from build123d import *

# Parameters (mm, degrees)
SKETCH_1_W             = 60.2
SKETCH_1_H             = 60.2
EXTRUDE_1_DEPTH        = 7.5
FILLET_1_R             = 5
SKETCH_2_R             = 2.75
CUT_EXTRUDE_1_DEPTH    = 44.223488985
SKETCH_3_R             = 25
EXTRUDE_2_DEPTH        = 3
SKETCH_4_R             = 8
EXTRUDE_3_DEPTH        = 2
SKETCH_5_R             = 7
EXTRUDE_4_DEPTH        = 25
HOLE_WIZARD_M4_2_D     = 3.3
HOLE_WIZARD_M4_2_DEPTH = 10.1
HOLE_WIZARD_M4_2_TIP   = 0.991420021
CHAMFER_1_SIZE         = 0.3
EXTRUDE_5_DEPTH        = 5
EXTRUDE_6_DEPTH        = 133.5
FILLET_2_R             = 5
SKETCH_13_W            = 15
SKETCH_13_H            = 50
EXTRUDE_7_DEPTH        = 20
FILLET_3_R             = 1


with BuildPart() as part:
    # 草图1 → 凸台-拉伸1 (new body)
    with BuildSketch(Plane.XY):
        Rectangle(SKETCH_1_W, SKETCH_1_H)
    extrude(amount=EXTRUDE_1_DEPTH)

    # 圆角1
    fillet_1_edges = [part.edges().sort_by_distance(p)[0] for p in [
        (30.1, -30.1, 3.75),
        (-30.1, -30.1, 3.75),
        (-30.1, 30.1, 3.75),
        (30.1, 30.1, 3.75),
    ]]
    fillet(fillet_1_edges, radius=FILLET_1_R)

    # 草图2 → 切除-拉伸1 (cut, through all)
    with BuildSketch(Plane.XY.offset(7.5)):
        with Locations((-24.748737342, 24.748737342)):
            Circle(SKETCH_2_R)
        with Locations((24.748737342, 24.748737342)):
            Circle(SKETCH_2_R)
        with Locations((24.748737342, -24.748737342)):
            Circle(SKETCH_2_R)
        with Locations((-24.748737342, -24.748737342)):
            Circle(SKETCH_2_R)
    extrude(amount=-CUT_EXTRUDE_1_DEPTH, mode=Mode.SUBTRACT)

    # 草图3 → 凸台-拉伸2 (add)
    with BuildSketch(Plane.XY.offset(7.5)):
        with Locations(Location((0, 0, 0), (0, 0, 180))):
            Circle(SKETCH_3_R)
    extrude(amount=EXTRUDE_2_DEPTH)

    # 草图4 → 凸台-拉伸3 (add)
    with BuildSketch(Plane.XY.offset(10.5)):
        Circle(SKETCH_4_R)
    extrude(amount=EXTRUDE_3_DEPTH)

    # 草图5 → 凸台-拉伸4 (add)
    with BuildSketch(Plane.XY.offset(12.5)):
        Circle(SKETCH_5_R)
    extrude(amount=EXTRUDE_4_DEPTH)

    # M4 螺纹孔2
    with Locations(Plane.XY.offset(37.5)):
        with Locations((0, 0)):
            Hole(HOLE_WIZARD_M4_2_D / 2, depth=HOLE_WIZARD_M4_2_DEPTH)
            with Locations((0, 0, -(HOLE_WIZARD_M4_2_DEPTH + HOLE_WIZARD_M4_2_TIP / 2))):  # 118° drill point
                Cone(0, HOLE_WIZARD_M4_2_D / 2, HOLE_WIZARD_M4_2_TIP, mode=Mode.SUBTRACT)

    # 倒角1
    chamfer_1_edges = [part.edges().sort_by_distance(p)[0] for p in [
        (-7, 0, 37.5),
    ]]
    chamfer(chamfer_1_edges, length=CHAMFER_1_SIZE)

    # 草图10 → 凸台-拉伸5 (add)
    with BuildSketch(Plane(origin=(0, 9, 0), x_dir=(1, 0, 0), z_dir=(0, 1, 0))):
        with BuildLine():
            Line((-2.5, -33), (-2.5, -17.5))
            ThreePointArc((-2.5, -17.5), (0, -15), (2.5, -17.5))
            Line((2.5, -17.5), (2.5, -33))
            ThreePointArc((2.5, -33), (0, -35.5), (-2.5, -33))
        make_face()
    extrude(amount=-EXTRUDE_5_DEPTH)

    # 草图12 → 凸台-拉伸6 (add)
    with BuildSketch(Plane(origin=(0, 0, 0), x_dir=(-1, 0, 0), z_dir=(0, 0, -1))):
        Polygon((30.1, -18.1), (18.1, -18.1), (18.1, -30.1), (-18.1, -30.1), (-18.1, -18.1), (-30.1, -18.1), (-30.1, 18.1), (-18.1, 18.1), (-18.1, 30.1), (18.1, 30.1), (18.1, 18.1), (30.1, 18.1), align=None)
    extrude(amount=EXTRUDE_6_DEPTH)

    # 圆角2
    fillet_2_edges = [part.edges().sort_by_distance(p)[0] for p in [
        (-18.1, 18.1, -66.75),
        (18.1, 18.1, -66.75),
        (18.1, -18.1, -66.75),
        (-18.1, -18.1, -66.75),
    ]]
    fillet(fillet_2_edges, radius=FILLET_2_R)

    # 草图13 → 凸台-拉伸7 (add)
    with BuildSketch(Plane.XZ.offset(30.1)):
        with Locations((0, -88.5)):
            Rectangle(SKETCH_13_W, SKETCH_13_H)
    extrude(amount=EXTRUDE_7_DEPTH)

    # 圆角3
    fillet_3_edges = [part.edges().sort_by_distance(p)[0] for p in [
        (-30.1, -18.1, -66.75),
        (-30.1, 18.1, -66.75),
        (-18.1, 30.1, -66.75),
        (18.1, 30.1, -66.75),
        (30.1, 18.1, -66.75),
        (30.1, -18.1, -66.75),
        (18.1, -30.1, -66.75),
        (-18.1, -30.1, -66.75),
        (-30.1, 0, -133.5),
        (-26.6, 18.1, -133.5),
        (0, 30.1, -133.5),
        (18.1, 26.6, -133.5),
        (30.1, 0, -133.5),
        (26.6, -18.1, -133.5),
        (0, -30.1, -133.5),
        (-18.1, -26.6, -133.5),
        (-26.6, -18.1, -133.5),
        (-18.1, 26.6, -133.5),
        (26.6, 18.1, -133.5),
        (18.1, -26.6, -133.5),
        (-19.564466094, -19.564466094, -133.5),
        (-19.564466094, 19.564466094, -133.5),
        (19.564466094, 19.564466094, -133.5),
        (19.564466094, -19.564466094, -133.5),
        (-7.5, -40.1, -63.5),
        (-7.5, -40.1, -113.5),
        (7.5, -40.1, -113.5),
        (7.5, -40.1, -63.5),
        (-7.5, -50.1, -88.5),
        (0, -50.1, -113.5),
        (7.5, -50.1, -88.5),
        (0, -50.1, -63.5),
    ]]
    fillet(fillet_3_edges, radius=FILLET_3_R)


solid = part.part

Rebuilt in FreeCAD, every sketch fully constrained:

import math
import FreeCAD as App
import Part
import Sketcher


def edges_at(feature, points):
    """Names of the edges that pass closest to the given points."""
    edges = feature.Shape.Edges
    near = lambda p: min(range(len(edges)), key=lambda i: edges[i].distToShape(Part.Vertex(*p))[0])
    return sorted({f"Edge{near(p) + 1}" for p in points})


def add_polygon(sketch, points):
    """Adds a closed chain of lines whose ends are joined by coincident constraints."""
    first, n = sketch.GeometryCount, len(points)
    for a, b in zip(points, points[1:] + points[:1]):
        sketch.addGeometry(Part.LineSegment(App.Vector(*a, 0), App.Vector(*b, 0)), False)
    for i in range(n):
        sketch.addConstraint(Sketcher.Constraint("Coincident", first + i, 2, first + (i + 1) % n, 1))

doc = App.newDocument("Part")
body = doc.addObject("PartDesign::Body", "Body")

# Sketch on XY plane
sketch1 = body.newObject("Sketcher::SketchObject", "Sketch")
sketch1.AttachmentSupport = (doc.getObject("XY_Plane"), [""])
sketch1.MapMode = "FlatFace"
add_polygon(sketch1, [(-30, 30), (-30, -30), (30, -30), (30, 30)])  # lines 0-3
sketch1.addConstraint([
    Sketcher.Constraint("Vertical", 0),
    Sketcher.Constraint("Horizontal", 1),
    Sketcher.Constraint("Vertical", 2),
    Sketcher.Constraint("Horizontal", 3),
    Sketcher.Constraint("Symmetric", 0, 2, 2, 2, -1, 1),
    Sketcher.Constraint("Equal", 3, 0),
    Sketcher.Constraint("DistanceX", 1, 1, 1, 2, 60.2),
])
pad1 = body.newObject("PartDesign::Pad", "Pad")
pad1.Profile = sketch1
pad1.Length = 7.5
doc.recompute()

fillet = body.newObject("PartDesign::Fillet", "Fillet")
fillet.Base = (pad1, edges_at(pad1, [
    (30.1, -30.1, 3.75),
    (-30.1, -30.1, 3.75),
    (-30.1, 30.1, 3.75),
    (30.1, 30.1, 3.75),
]))
fillet.Radius = 5

# Sketch on XY plane
sketch2 = body.newObject("Sketcher::SketchObject", "Sketch001")
sketch2.AttachmentSupport = (doc.getObject("XY_Plane"), [""])
sketch2.MapMode = "FlatFace"
sketch2.AttachmentOffset = App.Placement(App.Vector(0, 0, 7.5), App.Rotation())
sketch2.addGeometry([
    Part.Circle(App.Vector(-24.7, 24.7, 0), App.Vector(0, 0, 1), 2.8),
    Part.Circle(App.Vector(24.7, 24.7, 0), App.Vector(0, 0, 1), 2.8),
    Part.Circle(App.Vector(24.7, -24.7, 0), App.Vector(0, 0, 1), 2.8),
    Part.Circle(App.Vector(-24.7, -24.7, 0), App.Vector(0, 0, 1), 2.8),
], False)
sketch2.addConstraint([
    Sketcher.Constraint("Equal", 0, 1),
    Sketcher.Constraint("Equal", 1, 2),
    Sketcher.Constraint("Equal", 2, 3),
    Sketcher.Constraint("Symmetric", 0, 3, 2, 3, -1, 1),
    Sketcher.Constraint("Symmetric", 1, 3, 3, 3, -1, 1),
    Sketcher.Constraint("Symmetric", 0, 3, 1, 3, -2),
    Sketcher.Constraint("Diameter", 0, 5.5),
    Sketcher.Constraint("DistanceX", 0, 3, -1, 1, 24.748737),
    Sketcher.Constraint("DistanceY", -1, 1, 0, 3, 24.748737),
])
pocket1 = body.newObject("PartDesign::Pocket", "Pocket")
pocket1.Profile = sketch2
pocket1.Type = "ThroughAll"

# Sketch on XY plane
sketch3 = body.newObject("Sketcher::SketchObject", "Sketch002")
sketch3.AttachmentSupport = (doc.getObject("XY_Plane"), [""])
sketch3.MapMode = "FlatFace"
sketch3.AttachmentOffset = App.Placement(App.Vector(0, 0, 7.5), App.Rotation())
sketch3.addGeometry(Part.Circle(App.Vector(0, 0, 0), App.Vector(0, 0, 1), 25), False)
sketch3.addConstraint([
    Sketcher.Constraint("Coincident", 0, 3, -1, 1),
    Sketcher.Constraint("Diameter", 0, 50.0),
])
pad2 = body.newObject("PartDesign::Pad", "Pad001")
pad2.Profile = sketch3
pad2.Length = 3

# Sketch on XY plane
sketch4 = body.newObject("Sketcher::SketchObject", "Sketch003")
sketch4.AttachmentSupport = (doc.getObject("XY_Plane"), [""])
sketch4.MapMode = "FlatFace"
sketch4.AttachmentOffset = App.Placement(App.Vector(0, 0, 10.5), App.Rotation())
sketch4.addGeometry(Part.Circle(App.Vector(0, 0, 0), App.Vector(0, 0, 1), 8), False)
sketch4.addConstraint([
    Sketcher.Constraint("Coincident", 0, 3, -1, 1),
    Sketcher.Constraint("Diameter", 0, 16.0),
])
pad3 = body.newObject("PartDesign::Pad", "Pad002")
pad3.Profile = sketch4
pad3.Length = 2

# Sketch on XY plane
sketch5 = body.newObject("Sketcher::SketchObject", "Sketch004")
sketch5.AttachmentSupport = (doc.getObject("XY_Plane"), [""])
sketch5.MapMode = "FlatFace"
sketch5.AttachmentOffset = App.Placement(App.Vector(0, 0, 12.5), App.Rotation())
sketch5.addGeometry(Part.Circle(App.Vector(0, 0, 0), App.Vector(0, 0, 1), 7), False)
sketch5.addConstraint([
    Sketcher.Constraint("Coincident", 0, 3, -1, 1),
    Sketcher.Constraint("Diameter", 0, 14.0),
])
pad4 = body.newObject("PartDesign::Pad", "Pad003")
pad4.Profile = sketch5
pad4.Length = 25

# Sketch on XY plane
sketch6 = body.newObject("Sketcher::SketchObject", "Sketch005")
sketch6.AttachmentSupport = (doc.getObject("XY_Plane"), [""])
sketch6.MapMode = "FlatFace"
sketch6.AttachmentOffset = App.Placement(App.Vector(0, 0, 37.5), App.Rotation())
sketch6.addGeometry(Part.Circle(App.Vector(0, 0, 0), App.Vector(0, 0, 1), 1.6), False)
sketch6.addConstraint([
    Sketcher.Constraint("Coincident", 0, 3, -1, 1),
    Sketcher.Constraint("Diameter", 0, 3.3),
])
doc.recompute()
hole = body.newObject("PartDesign::Hole", "Hole")
hole.Profile = sketch6
hole.ThreadType = "None"
hole.Diameter = 3.3
hole.DepthType = "Dimension"
hole.Depth = 10.1
hole.DrillPoint = "Angled"
hole.DrillPointAngle = 118
doc.recompute()

chamfer = body.newObject("PartDesign::Chamfer", "Chamfer")
chamfer.Base = (hole, edges_at(hole, [(-7, 0, 37.5)]))
chamfer.Size = 0.3

# Sketch on XZ plane
sketch7 = body.newObject("Sketcher::SketchObject", "Sketch006")
sketch7.AttachmentSupport = (doc.getObject("XZ_Plane"), [""])
sketch7.MapMode = "FlatFace"
sketch7.AttachmentOffset = App.Placement(App.Vector(0, 0, -9), App.Rotation())
sketch7.addGeometry([
    Part.LineSegment(App.Vector(-2.5, 17.5, 0), App.Vector(-2.5, 33, 0)),
    Part.ArcOfCircle(Part.Circle(App.Vector(0, 33, 0), App.Vector(0, 0, 1), 2.5), math.radians(0), math.radians(180)),
    Part.LineSegment(App.Vector(2.5, 33, 0), App.Vector(2.5, 17.5, 0)),
    Part.ArcOfCircle(Part.Circle(App.Vector(0, 17.5, 0), App.Vector(0, 0, 1), 2.5), math.radians(180), math.radians(360)),
], False)
sketch7.addConstraint([
    Sketcher.Constraint("Tangent", 0, 2, 1, 2),
    Sketcher.Constraint("Tangent", 1, 1, 2, 1),
    Sketcher.Constraint("Tangent", 2, 2, 3, 2),
    Sketcher.Constraint("Tangent", 3, 1, 0, 1),
    Sketcher.Constraint("Vertical", 0),
    Sketcher.Constraint("Vertical", 2),
    Sketcher.Constraint("PointOnObject", 1, 3, -2),
    Sketcher.Constraint("Radius", 1, 2.5),
    Sketcher.Constraint("DistanceY", 0, 1, 0, 2, 15.5),
    Sketcher.Constraint("DistanceY", -1, 1, 1, 3, 33.0),
])
pad5 = body.newObject("PartDesign::Pad", "Pad004")
pad5.Profile = sketch7
pad5.Length = 5

# Sketch on XY plane
sketch8 = body.newObject("Sketcher::SketchObject", "Sketch007")
sketch8.AttachmentSupport = (doc.getObject("XY_Plane"), [""])
sketch8.MapMode = "FlatFace"
add_polygon(sketch8, [(-18, -18), (-30, -18), (-30, 18), (-18, 18), (-18, 30), (18, 30), (18, 18), (30, 18), (30, -18), (18, -18), (18, -30), (-18, -30)])  # lines 0-11
sketch8.addConstraint([
    Sketcher.Constraint("Horizontal", 0),
    Sketcher.Constraint("Vertical", 1),
    Sketcher.Constraint("Horizontal", 2),
    Sketcher.Constraint("Vertical", 3),
    Sketcher.Constraint("Horizontal", 4),
    Sketcher.Constraint("Vertical", 5),
    Sketcher.Constraint("Horizontal", 6),
    Sketcher.Constraint("Vertical", 7),
    Sketcher.Constraint("Horizontal", 8),
    Sketcher.Constraint("Vertical", 9),
    Sketcher.Constraint("Horizontal", 10),
    Sketcher.Constraint("Vertical", 11),
    Sketcher.Constraint("Symmetric", 0, 2, 6, 2, -1, 1),
    Sketcher.Constraint("Symmetric", 2, 2, 8, 2, -1, 1),
    Sketcher.Constraint("Symmetric", 4, 2, 10, 2, -1, 1),
    Sketcher.Constraint("Symmetric", 2, 2, 5, 2, -2),
    Sketcher.Constraint("Equal", 10, 1),
    Sketcher.Constraint("Equal", 8, 3),
    Sketcher.Constraint("DistanceX", 0, 2, 0, 1, 12.0),
    Sketcher.Constraint("DistanceX", 4, 1, 4, 2, 36.2),
])
pad6 = body.newObject("PartDesign::Pad", "Pad005")
pad6.Profile = sketch8
pad6.Length = 133.5
pad6.Reversed = True
doc.recompute()

fillet2 = body.newObject("PartDesign::Fillet", "Fillet001")
fillet2.Base = (pad6, edges_at(pad6, [
    (-18.1, 18.1, -66.75),
    (18.1, 18.1, -66.75),
    (18.1, -18.1, -66.75),
    (-18.1, -18.1, -66.75),
]))
fillet2.Radius = 5

# Sketch on XZ plane
sketch9 = body.newObject("Sketcher::SketchObject", "Sketch008")
sketch9.AttachmentSupport = (doc.getObject("XZ_Plane"), [""])
sketch9.MapMode = "FlatFace"
sketch9.AttachmentOffset = App.Placement(App.Vector(0, 0, 30.1), App.Rotation())
add_polygon(sketch9, [(-8, -64), (-8, -114), (8, -114), (8, -64)])  # lines 0-3
sketch9.addConstraint([
    Sketcher.Constraint("Vertical", 0),
    Sketcher.Constraint("Horizontal", 1),
    Sketcher.Constraint("Vertical", 2),
    Sketcher.Constraint("Horizontal", 3),
    Sketcher.Constraint("DistanceX", 1, 1, 1, 2, 15.0),
    Sketcher.Constraint("DistanceY", 0, 2, 0, 1, 50.0),
    Sketcher.Constraint("DistanceX", 0, 2, -1, 1, 7.5),
    Sketcher.Constraint("DistanceY", 0, 2, -1, 1, 113.5),
])
pad7 = body.newObject("PartDesign::Pad", "Pad006")
pad7.Profile = sketch9
pad7.Length = 20
doc.recompute()

fillet3 = body.newObject("PartDesign::Fillet", "Fillet002")
fillet3.Base = (pad7, edges_at(pad7, [
    (-30.1, -18.1, -66.75),
    (-30.1, 18.1, -66.75),
    (-18.1, 30.1, -66.75),
    (18.1, 30.1, -66.75),
    (30.1, 18.1, -66.75),
    (30.1, -18.1, -66.75),
    (18.1, -30.1, -66.75),
    (-18.1, -30.1, -66.75),
    (-30.1, 0, -133.5),
    (-26.6, 18.1, -133.5),
    (0, 30.1, -133.5),
    (18.1, 26.6, -133.5),
    (30.1, 0, -133.5),
    (26.6, -18.1, -133.5),
    (0, -30.1, -133.5),
    (-18.1, -26.6, -133.5),
    (-26.6, -18.1, -133.5),
    (-18.1, 26.6, -133.5),
    (26.6, 18.1, -133.5),
    (18.1, -26.6, -133.5),
    (-19.564, -19.564, -133.5),
    (-19.564, 19.564, -133.5),
    (19.564, 19.564, -133.5),
    (19.564, -19.564, -133.5),
    (-7.5, -40.1, -63.5),
    (-7.5, -40.1, -113.5),
    (7.5, -40.1, -113.5),
    (7.5, -40.1, -63.5),
    (-7.5, -50.1, -88.5),
    (0, -50.1, -113.5),
    (7.5, -50.1, -88.5),
    (0, -50.1, -63.5),
]))
fillet3.Radius = 1

doc.recompute()
